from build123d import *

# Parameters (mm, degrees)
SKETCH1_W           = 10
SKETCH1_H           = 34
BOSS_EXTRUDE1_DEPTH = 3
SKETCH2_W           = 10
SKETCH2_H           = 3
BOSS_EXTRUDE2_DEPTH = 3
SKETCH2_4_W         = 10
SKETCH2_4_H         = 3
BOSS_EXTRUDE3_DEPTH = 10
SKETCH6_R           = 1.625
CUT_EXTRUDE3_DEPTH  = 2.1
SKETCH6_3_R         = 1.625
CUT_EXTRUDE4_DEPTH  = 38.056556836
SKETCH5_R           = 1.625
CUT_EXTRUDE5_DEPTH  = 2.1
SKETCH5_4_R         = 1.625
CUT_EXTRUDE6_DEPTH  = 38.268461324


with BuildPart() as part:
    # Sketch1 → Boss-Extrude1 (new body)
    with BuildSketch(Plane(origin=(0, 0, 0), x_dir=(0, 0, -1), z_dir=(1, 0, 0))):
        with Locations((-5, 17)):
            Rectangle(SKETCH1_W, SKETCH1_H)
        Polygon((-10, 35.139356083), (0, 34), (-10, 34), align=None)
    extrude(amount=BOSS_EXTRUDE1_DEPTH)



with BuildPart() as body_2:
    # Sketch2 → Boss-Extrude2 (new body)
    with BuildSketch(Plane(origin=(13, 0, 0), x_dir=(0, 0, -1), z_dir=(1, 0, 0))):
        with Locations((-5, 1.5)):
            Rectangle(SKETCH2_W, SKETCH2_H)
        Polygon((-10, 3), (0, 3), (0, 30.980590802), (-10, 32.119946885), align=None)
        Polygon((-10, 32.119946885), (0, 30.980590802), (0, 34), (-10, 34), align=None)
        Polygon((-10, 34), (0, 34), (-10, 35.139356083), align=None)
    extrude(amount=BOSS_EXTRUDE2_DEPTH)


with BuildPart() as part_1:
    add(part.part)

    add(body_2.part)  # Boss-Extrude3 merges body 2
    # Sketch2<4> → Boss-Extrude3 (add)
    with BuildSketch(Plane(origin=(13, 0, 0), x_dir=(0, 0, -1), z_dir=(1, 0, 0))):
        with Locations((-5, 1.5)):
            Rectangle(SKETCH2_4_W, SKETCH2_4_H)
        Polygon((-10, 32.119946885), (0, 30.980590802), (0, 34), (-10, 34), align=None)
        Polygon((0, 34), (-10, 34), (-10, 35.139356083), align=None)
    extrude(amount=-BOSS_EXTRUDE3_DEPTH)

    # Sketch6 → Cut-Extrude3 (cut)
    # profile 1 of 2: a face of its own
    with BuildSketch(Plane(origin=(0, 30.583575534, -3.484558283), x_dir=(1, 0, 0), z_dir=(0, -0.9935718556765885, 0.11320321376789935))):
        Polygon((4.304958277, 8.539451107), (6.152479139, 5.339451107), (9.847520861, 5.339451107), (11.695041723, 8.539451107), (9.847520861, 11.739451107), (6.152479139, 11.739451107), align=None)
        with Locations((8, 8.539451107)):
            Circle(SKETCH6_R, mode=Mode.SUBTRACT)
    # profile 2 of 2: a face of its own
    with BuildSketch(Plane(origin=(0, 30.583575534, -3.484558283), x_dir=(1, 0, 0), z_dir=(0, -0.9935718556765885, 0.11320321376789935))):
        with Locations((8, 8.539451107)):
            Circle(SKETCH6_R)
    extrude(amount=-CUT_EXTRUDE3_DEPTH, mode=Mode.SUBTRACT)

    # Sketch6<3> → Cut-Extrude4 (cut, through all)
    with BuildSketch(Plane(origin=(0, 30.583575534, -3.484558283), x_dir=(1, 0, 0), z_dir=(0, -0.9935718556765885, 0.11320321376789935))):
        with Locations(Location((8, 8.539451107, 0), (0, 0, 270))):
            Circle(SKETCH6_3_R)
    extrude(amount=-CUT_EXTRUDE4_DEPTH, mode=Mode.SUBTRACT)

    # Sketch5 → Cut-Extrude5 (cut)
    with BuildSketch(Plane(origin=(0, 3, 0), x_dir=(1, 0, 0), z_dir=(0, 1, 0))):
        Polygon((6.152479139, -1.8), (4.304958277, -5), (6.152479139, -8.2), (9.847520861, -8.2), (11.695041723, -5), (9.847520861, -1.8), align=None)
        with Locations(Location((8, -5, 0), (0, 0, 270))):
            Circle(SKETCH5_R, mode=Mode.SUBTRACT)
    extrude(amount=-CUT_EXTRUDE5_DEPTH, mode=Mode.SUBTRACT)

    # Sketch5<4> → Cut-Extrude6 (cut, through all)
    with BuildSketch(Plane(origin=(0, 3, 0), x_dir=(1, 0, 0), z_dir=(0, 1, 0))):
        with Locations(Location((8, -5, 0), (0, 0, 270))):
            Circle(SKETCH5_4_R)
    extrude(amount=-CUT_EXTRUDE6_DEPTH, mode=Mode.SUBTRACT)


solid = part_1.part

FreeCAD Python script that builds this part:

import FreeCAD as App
import Part
import Sketcher

V = App.Vector
Q = App.Units.Quantity


def add_polygon(sketch, points):
    """Adds a closed chain of lines whose ends are joined by coincident constraints."""
    first, n = sketch.GeometryCount, len(points)
    for a, b in zip(points, points[1:] + points[:1]):
        sketch.addGeometry(Part.LineSegment(App.Vector(*a, 0), App.Vector(*b, 0)), False)
    for i in range(n):
        sketch.addConstraint(Sketcher.Constraint("Coincident", first + i, 2, first + (i + 1) % n, 1))

doc = App.newDocument("Part")
body = doc.addObject("PartDesign::Body", "Body")

sketch1 = doc.addObject("Sketcher::SketchObject", "Sketch")
body.addObject(sketch1)
sketch1.AttachmentSupport = (doc.YZ_Plane, [""])
sketch1.MapMode = "FlatFace"
add_polygon(sketch1, [(0, 10), (0, 0), (34, 0), (35, 10)])
sketch1.addConstraint([
    Sketcher.Constraint("Vertical", 0),
    Sketcher.Constraint("Horizontal", 1),
    Sketcher.Constraint("Horizontal", 3),
    Sketcher.Constraint("Coincident", 0, 2, -1, 1),
    Sketcher.Constraint("DistanceX", 1, 1, 1, 2, Q("34 mm")),
    Sketcher.Constraint("DistanceY", 0, 2, 0, 1, Q("10 mm")),
    Sketcher.Constraint("Angle", 2, Q("83.5 deg")),
])
pad1 = doc.addObject("PartDesign::Pad", "Pad")
body.addObject(pad1)
pad1.Profile = sketch1
pad1.Length = 3
body2 = doc.addObject("PartDesign::Body", "Body001")

sketch2 = doc.addObject("Sketcher::SketchObject", "Sketch001")
body2.addObject(sketch2)
sketch2.AttachmentSupport = (doc.getObject("YZ_Plane001"), [""])
sketch2.MapMode = "FlatFace"
sketch2.AttachmentOffset = App.Placement(V(0, 0, 13), App.Rotation())
add_polygon(sketch2, [(0, 10), (0, 0), (34, 0), (35, 10)])
sketch2.addConstraint([
    Sketcher.Constraint("Vertical", 0),
    Sketcher.Constraint("Horizontal", 1),
    Sketcher.Constraint("Horizontal", 3),
    Sketcher.Constraint("Coincident", 0, 2, -1, 1),
    Sketcher.Constraint("DistanceX", 1, 1, 1, 2, Q("34 mm")),
    Sketcher.Constraint("DistanceY", 0, 2, 0, 1, Q("10 mm")),
    Sketcher.Constraint("Angle", 2, Q("83.5 deg")),
])
pad2 = doc.addObject("PartDesign::Pad", "Pad001")
body2.addObject(pad2)
pad2.Profile = sketch2
pad2.Length = 3
body.AllowCompound = True
doc.recompute()

boolean = doc.addObject("PartDesign::Boolean", "Boolean")
body.addObject(boolean)
boolean.Type = "Fuse"
boolean.addObjects([body2])

sketch3 = doc.addObject("Sketcher::SketchObject", "Sketch002")
body.addObject(sketch3)
sketch3.AttachmentSupport = (doc.YZ_Plane, [""])
sketch3.MapMode = "FlatFace"
sketch3.AttachmentOffset = App.Placement(V(0, 0, 13), App.Rotation())
add_polygon(sketch3, [(3, 10), (0, 10), (0, 0), (3, 0)])
add_polygon(sketch3, [(32.1, 10), (31, 0), (34, 0), (35.1, 10)])
sketch3.addConstraint([
    Sketcher.Constraint("Horizontal", 0),
    Sketcher.Constraint("Vertical", 1),
    Sketcher.Constraint("Horizontal", 2),
    Sketcher.Constraint("Vertical", 3),
    Sketcher.Constraint("Horizontal", 5),
    Sketcher.Constraint("Horizontal", 7),
    Sketcher.Constraint("Coincident", 1, 2, -1, 1),
    Sketcher.Constraint("PointOnObject", 4, 2, -1),
    Sketcher.Constraint("Parallel", 4, 6),
    Sketcher.Constraint("Horizontal", 3, 2, 6, 2),
    Sketcher.Constraint("DistanceX", 0, 2, 0, 1, Q("3 mm")),
    Sketcher.Constraint("DistanceY", 1, 2, 1, 1, Q("10 mm")),
    Sketcher.Constraint("DistanceX", -1, 1, 5, 2, Q("34 mm")),
    Sketcher.Constraint("Angle", 4, Q("-96.5 deg")),
    Sketcher.Constraint("DistanceX", 5, 1, 5, 2, Q("3.019409 mm")),
])
pad3 = doc.addObject("PartDesign::Pad", "Pad002")
body.addObject(pad3)
pad3.Profile = sketch3
pad3.Length = 10
pad3.Reversed = True

sketch4 = doc.addObject("Sketcher::SketchObject", "Sketch003")
body.addObject(sketch4)
sketch4.Placement = App.Placement(V(0, 30.583576, -3.484558), App.Rotation(V(1, 0, 0), V(0, 0.113203214, 0.993571856), V(0, -0.993571856, 0.113203214), "ZXY"))
add_polygon(sketch4, [(4.3, 8.5), (6.2, 5.3), (9.8, 5.3), (11.7, 8.5), (9.8, 11.7), (6.2, 11.7)])
sketch4.addConstraint([
    Sketcher.Constraint("Horizontal", 1),
    Sketcher.Constraint("Horizontal", 4),
    Sketcher.Constraint("Parallel", 0, 3),
    Sketcher.Constraint("Parallel", 2, 5),
    Sketcher.Constraint("Horizontal", 2, 2, 5, 2),
    Sketcher.Constraint("Vertical", 1, 2, 3, 2),
    Sketcher.Constraint("Vertical", 0, 2, 4, 2),
    Sketcher.Constraint("Angle", 0, Q("-60 deg")),
    Sketcher.Constraint("DistanceY", 1, 2, 2, 2, Q("3.2 mm")),
    Sketcher.Constraint("DistanceX", 1, 1, 1, 2, Q("3.695042 mm")),
    Sketcher.Constraint("DistanceX", -1, 1, 0, 2, Q("6.152479 mm")),
    Sketcher.Constraint("DistanceY", -1, 1, 0, 2, Q("5.339451 mm")),
])
pocket1 = doc.addObject("PartDesign::Pocket", "Pocket")
body.addObject(pocket1)
pocket1.Profile = sketch4
pocket1.Length = 2.1

sketch5 = doc.addObject("Sketcher::SketchObject", "Sketch004")
body.addObject(sketch5)
sketch5.Placement = App.Placement(V(0, 30.583576, -3.484558), App.Rotation(V(1, 0, 0), V(0, 0.113203214, 0.993571856), V(0, -0.993571856, 0.113203214), "ZXY"))
sketch5.addGeometry(Part.Circle(V(8, 8.5, 0), V(0, 0, 1), 1.6), False)
sketch5.addConstraint([
    Sketcher.Constraint("Diameter", 0, Q("3.25 mm")),
    Sketcher.Constraint("DistanceX", -1, 1, 0, 3, Q("8 mm")),
    Sketcher.Constraint("DistanceY", -1, 1, 0, 3, Q("8.539451 mm")),
])
pocket2 = doc.addObject("PartDesign::Pocket", "Pocket001")
body.addObject(pocket2)
pocket2.Profile = sketch5
pocket2.Type = "ThroughAll"

sketch6 = doc.addObject("Sketcher::SketchObject", "Sketch005")
body.addObject(sketch6)
sketch6.AttachmentSupport = (doc.XZ_Plane, [""])
sketch6.MapMode = "FlatFace"
sketch6.AttachmentOffset = App.Placement(V(0, 0, -3), App.Rotation())
add_polygon(sketch6, [(6.2, 1.8), (4.3, 5), (6.2, 8.2), (9.8, 8.2), (11.7, 5), (9.8, 1.8)])
sketch6.addGeometry(Part.Circle(V(8, 5, 0), V(0, 0, 1), 1.6), False)
sketch6.addConstraint([
    Sketcher.Constraint("Horizontal", 2),
    Sketcher.Constraint("Horizontal", 5),
    Sketcher.Constraint("Parallel", 0, 3),
    Sketcher.Constraint("Parallel", 1, 4),
    Sketcher.Constraint("Horizontal", 6, 3, 0, 2),
    Sketcher.Constraint("Horizontal", 0, 2, 3, 2),
    Sketcher.Constraint("Vertical", 2, 2, 4, 2),
    Sketcher.Constraint("Vertical", 1, 2, 5, 2),
    Sketcher.Constraint("Diameter", 6, Q("3.25 mm")),
    Sketcher.Constraint("Angle", 0, Q("120 deg")),
    Sketcher.Constraint("DistanceX", -1, 1, 6, 3, Q("8 mm")),
    Sketcher.Constraint("DistanceY", -1, 1, 6, 3, Q("5 mm")),
    Sketcher.Constraint("DistanceY", -1, 1, 1, 2, Q("8.2 mm")),
    Sketcher.Constraint("DistanceX", 2, 1, 2, 2, Q("3.695042 mm")),
    Sketcher.Constraint("DistanceX", -1, 1, 0, 2, Q("4.304958 mm")),
])
pocket3 = doc.addObject("PartDesign::Pocket", "Pocket002")
body.addObject(pocket3)
pocket3.Profile = sketch6
pocket3.Length = 2.1
pocket3.Reversed = True

sketch7 = doc.addObject("Sketcher::SketchObject", "Sketch006")
body.addObject(sketch7)
sketch7.AttachmentSupport = (doc.XZ_Plane, [""])
sketch7.MapMode = "FlatFace"
sketch7.AttachmentOffset = App.Placement(V(0, 0, -3), App.Rotation())
sketch7.addGeometry(Part.Circle(V(8, 5, 0), V(0, 0, 1), 1.6), False)
sketch7.addConstraint([
    Sketcher.Constraint("Diameter", 0, Q("3.25 mm")),
    Sketcher.Constraint("DistanceX", -1, 1, 0, 3, Q("8 mm")),
    Sketcher.Constraint("DistanceY", -1, 1, 0, 3, Q("5 mm")),
])
pocket4 = doc.addObject("PartDesign::Pocket", "Pocket003")
body.addObject(pocket4)
pocket4.Profile = sketch7
pocket4.Type = "ThroughAll"
pocket4.Reversed = True

doc.recompute()
